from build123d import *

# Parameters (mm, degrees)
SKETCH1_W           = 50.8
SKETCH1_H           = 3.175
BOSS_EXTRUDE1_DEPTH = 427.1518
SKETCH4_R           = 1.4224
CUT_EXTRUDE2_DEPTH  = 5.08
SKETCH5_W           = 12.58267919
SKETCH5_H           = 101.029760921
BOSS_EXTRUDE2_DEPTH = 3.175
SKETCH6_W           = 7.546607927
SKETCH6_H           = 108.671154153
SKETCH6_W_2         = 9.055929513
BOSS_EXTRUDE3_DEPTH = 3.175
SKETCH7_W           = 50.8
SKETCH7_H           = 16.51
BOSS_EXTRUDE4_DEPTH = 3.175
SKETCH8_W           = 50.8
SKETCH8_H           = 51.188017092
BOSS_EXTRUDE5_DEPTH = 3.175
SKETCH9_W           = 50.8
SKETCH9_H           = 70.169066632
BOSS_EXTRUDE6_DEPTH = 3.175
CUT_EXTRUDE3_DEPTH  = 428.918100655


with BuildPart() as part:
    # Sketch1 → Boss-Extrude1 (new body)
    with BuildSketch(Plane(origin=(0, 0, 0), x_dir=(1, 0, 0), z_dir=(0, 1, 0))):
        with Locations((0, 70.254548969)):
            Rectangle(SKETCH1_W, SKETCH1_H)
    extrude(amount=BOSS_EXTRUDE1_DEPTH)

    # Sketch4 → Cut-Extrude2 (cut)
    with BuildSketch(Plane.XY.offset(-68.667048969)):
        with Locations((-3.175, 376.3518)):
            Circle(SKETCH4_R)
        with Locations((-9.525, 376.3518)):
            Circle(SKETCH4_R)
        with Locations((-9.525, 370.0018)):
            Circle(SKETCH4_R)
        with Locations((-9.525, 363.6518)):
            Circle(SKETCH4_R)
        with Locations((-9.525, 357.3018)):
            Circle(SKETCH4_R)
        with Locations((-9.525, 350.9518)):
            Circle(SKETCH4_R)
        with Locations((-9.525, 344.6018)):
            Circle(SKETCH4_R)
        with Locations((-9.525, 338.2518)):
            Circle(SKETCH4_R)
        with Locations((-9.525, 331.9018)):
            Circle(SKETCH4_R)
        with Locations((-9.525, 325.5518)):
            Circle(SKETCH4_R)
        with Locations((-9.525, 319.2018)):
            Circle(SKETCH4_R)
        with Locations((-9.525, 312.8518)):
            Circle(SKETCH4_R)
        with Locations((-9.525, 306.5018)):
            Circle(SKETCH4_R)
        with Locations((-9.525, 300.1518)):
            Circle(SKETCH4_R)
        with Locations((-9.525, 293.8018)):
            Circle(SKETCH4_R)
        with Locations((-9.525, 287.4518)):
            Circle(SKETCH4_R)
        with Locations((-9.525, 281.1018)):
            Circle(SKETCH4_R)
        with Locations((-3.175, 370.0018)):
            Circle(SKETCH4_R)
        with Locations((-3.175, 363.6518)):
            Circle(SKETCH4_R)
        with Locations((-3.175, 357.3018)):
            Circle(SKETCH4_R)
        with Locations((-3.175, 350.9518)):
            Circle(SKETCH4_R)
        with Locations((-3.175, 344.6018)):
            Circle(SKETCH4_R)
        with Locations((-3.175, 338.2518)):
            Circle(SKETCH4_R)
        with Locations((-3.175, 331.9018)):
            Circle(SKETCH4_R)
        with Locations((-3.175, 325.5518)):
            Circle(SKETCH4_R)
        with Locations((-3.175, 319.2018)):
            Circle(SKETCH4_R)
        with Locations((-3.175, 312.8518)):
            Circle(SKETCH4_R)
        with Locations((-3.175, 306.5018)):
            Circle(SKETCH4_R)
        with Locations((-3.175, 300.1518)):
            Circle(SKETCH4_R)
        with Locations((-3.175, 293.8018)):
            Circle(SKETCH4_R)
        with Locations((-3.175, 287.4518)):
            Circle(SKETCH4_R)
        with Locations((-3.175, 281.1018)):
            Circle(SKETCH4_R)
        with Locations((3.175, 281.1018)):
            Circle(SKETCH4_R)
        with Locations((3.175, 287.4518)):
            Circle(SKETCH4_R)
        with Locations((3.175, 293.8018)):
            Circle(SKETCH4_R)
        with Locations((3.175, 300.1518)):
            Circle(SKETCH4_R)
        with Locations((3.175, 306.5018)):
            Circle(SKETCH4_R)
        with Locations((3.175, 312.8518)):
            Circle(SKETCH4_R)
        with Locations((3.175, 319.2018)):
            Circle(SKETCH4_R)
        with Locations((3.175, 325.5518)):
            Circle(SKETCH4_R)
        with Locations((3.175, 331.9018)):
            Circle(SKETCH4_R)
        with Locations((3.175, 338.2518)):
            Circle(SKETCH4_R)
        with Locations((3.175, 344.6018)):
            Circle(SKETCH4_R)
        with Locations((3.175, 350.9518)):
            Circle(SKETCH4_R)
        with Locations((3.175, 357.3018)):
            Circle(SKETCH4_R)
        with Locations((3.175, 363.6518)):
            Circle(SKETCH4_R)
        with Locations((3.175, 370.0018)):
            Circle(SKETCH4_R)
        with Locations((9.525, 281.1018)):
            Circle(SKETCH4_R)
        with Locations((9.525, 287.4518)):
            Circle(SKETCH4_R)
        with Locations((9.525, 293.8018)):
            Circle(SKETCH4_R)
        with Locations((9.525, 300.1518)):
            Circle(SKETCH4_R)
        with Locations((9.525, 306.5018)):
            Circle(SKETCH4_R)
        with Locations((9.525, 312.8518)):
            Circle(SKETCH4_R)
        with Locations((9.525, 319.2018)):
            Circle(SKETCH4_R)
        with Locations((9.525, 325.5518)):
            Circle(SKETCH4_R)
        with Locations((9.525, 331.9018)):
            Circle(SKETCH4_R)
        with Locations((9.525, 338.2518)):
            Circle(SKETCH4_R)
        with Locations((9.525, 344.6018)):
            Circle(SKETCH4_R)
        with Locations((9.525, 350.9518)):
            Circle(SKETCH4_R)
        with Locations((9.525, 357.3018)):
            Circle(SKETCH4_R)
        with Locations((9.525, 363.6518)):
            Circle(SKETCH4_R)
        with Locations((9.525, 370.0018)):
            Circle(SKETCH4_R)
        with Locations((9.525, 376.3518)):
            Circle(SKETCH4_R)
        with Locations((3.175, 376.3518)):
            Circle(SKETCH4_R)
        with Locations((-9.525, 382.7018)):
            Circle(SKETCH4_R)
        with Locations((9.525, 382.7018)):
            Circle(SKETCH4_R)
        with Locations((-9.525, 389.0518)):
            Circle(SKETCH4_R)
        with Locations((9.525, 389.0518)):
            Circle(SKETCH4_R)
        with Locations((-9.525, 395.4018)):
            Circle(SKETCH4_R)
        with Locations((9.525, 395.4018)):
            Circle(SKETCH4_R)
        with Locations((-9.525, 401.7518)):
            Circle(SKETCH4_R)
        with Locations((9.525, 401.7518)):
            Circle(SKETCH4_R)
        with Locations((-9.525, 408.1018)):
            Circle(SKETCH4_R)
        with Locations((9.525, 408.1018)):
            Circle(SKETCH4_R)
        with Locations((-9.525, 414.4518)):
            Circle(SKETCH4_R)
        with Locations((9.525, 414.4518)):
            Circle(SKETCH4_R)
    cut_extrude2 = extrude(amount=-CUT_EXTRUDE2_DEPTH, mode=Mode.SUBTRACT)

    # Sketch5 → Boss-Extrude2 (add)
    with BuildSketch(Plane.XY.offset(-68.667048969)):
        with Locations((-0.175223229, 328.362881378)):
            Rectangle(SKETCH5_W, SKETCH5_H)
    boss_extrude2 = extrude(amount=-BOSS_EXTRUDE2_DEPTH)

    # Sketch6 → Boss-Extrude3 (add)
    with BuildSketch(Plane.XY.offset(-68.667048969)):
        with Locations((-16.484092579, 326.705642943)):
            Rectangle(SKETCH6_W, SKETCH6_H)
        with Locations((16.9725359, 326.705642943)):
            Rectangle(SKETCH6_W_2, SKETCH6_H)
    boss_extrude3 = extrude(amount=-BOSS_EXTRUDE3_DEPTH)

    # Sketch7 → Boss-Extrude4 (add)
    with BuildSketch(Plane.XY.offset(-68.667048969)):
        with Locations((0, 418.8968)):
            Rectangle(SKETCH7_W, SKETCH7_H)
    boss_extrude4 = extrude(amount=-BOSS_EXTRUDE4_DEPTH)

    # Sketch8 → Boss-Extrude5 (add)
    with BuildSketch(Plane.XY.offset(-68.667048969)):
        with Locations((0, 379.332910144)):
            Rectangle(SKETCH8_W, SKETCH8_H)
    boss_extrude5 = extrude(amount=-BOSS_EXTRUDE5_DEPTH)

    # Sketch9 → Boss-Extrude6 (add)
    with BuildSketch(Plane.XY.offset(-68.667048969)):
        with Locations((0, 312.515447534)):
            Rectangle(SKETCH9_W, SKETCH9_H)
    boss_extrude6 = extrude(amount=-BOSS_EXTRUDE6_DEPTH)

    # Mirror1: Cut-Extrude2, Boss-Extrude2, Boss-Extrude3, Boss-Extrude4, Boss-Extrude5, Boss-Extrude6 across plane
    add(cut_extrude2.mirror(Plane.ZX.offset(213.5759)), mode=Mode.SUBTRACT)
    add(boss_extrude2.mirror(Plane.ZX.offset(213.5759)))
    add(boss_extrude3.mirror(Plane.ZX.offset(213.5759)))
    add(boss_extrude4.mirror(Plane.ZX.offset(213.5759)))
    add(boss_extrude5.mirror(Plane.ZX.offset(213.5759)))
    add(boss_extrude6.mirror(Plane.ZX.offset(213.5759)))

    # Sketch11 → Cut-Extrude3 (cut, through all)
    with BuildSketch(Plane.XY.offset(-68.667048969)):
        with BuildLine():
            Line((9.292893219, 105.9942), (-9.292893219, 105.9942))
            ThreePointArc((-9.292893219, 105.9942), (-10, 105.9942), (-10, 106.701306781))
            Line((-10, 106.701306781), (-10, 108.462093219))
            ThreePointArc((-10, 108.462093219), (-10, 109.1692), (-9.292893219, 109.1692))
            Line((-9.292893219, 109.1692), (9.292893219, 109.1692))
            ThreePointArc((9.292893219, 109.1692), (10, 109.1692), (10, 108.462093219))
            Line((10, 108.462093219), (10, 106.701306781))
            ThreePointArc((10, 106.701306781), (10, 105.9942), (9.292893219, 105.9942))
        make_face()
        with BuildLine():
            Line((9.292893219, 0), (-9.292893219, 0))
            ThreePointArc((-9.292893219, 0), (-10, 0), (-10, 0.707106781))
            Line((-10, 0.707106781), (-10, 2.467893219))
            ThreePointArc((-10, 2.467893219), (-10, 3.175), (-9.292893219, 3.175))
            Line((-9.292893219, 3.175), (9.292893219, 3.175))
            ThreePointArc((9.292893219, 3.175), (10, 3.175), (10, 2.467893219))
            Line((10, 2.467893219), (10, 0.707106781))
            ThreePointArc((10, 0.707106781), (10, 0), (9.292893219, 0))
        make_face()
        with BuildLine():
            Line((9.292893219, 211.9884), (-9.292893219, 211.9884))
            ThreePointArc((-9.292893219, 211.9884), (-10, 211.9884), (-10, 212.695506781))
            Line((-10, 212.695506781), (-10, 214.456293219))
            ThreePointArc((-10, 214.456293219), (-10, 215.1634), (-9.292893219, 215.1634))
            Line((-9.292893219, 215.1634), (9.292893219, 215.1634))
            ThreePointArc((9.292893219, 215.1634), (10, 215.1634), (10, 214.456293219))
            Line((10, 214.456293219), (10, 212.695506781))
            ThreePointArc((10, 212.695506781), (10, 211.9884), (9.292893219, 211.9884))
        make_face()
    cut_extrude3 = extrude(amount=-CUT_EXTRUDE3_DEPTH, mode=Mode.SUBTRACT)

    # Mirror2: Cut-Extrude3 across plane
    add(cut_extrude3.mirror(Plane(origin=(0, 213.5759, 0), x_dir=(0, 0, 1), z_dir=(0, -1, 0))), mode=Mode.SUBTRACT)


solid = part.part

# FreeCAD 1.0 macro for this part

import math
import FreeCAD as App
import Part
import Sketcher
Q = App.Units.Quantity

doc = App.newDocument("Part")
body = doc.addObject("PartDesign::Body", "Body")

# Sketch on XZ plane
sketch1 = doc.addObject("Sketcher::SketchObject", "Sketch")
body.addObject(sketch1)
sketch1.AttachmentSupport = (doc.XZ_Plane, [""])
sketch1.MapMode = "FlatFace"
sketch1.addGeometry(Part.LineSegment(App.Vector(-25.4, -71.8, 0), App.Vector(-25.4, -68.7, 0)), False)
sketch1.addGeometry(Part.LineSegment(App.Vector(-25.4, -68.7, 0), App.Vector(25.4, -68.7, 0)), False)
sketch1.addGeometry(Part.LineSegment(App.Vector(25.4, -68.7, 0), App.Vector(25.4, -71.8, 0)), False)
sketch1.addGeometry(Part.LineSegment(App.Vector(25.4, -71.8, 0), App.Vector(-25.4, -71.8, 0)), False)
sketch1.addConstraint(Sketcher.Constraint("Coincident", 0, 2, 1, 1))
sketch1.addConstraint(Sketcher.Constraint("Coincident", 1, 2, 2, 1))
sketch1.addConstraint(Sketcher.Constraint("Coincident", 2, 2, 3, 1))
sketch1.addConstraint(Sketcher.Constraint("Coincident", 3, 2, 0, 1))
sketch1.addConstraint(Sketcher.Constraint("Vertical", 0))
sketch1.addConstraint(Sketcher.Constraint("Horizontal", 1))
sketch1.addConstraint(Sketcher.Constraint("Vertical", 2))
sketch1.addConstraint(Sketcher.Constraint("Horizontal", 3))
sketch1.addConstraint(Sketcher.Constraint("DistanceX", 1, 1, 1, 2, Q("2 in")))
sketch1.addConstraint(Sketcher.Constraint("DistanceX", 0, 2, -1, 1, Q("1 in")))
sketch1.addConstraint(Sketcher.Constraint("DistanceY", 0, 1, 0, 2, Q("0.125 in")))
sketch1.addConstraint(Sketcher.Constraint("DistanceY", 0, 2, -1, 1, 68.667049))
pad1 = doc.addObject("PartDesign::Pad", "Pad")
body.addObject(pad1)
pad1.Profile = sketch1
pad1.Length = Q("16.817 in")
pad1.Reversed = True

# Sketch on XY plane
sketch2 = doc.addObject("Sketcher::SketchObject", "Sketch001")
body.addObject(sketch2)
sketch2.AttachmentSupport = (doc.XY_Plane, [""])
sketch2.MapMode = "FlatFace"
sketch2.AttachmentOffset = App.Placement(App.Vector(0, 0, -68.667049), App.Rotation())
sketch2.addGeometry(Part.Circle(App.Vector(-3.2, 376.4, 0), App.Vector(0, 0, 1), 1.4), False)
sketch2.addGeometry(Part.Circle(App.Vector(-9.5, 376.4, 0), App.Vector(0, 0, 1), 1.4), False)
sketch2.addGeometry(Part.Circle(App.Vector(-9.5, 370, 0), App.Vector(0, 0, 1), 1.4), False)
sketch2.addGeometry(Part.Circle(App.Vector(-9.5, 363.7, 0), App.Vector(0, 0, 1), 1.4), False)
sketch2.addGeometry(Part.Circle(App.Vector(-9.5, 357.3, 0), App.Vector(0, 0, 1), 1.4), False)
sketch2.addGeometry(Part.Circle(App.Vector(-9.5, 351, 0), App.Vector(0, 0, 1), 1.4), False)
sketch2.addGeometry(Part.Circle(App.Vector(-9.5, 344.6, 0), App.Vector(0, 0, 1), 1.4), False)
sketch2.addGeometry(Part.Circle(App.Vector(-9.5, 338.3, 0), App.Vector(0, 0, 1), 1.4), False)
sketch2.addGeometry(Part.Circle(App.Vector(-9.5, 331.9, 0), App.Vector(0, 0, 1), 1.4), False)
sketch2.addGeometry(Part.Circle(App.Vector(-9.5, 325.6, 0), App.Vector(0, 0, 1), 1.4), False)
sketch2.addGeometry(Part.Circle(App.Vector(-9.5, 319.2, 0), App.Vector(0, 0, 1), 1.4), False)
sketch2.addGeometry(Part.Circle(App.Vector(-9.5, 312.9, 0), App.Vector(0, 0, 1), 1.4), False)
sketch2.addGeometry(Part.Circle(App.Vector(-9.5, 306.5, 0), App.Vector(0, 0, 1), 1.4), False)
sketch2.addGeometry(Part.Circle(App.Vector(-9.5, 300.2, 0), App.Vector(0, 0, 1), 1.4), False)
sketch2.addGeometry(Part.Circle(App.Vector(-9.5, 293.8, 0), App.Vector(0, 0, 1), 1.4), False)
sketch2.addGeometry(Part.Circle(App.Vector(-9.5, 287.5, 0), App.Vector(0, 0, 1), 1.4), False)
sketch2.addGeometry(Part.Circle(App.Vector(-9.5, 281.1, 0), App.Vector(0, 0, 1), 1.4), False)
sketch2.addGeometry(Part.Circle(App.Vector(-3.2, 370, 0), App.Vector(0, 0, 1), 1.4), False)
sketch2.addGeometry(Part.Circle(App.Vector(-3.2, 363.7, 0), App.Vector(0, 0, 1), 1.4), False)
sketch2.addGeometry(Part.Circle(App.Vector(-3.2, 357.3, 0), App.Vector(0, 0, 1), 1.4), False)
sketch2.addGeometry(Part.Circle(App.Vector(-3.2, 351, 0), App.Vector(0, 0, 1), 1.4), False)
sketch2.addGeometry(Part.Circle(App.Vector(-3.2, 344.6, 0), App.Vector(0, 0, 1), 1.4), False)
sketch2.addGeometry(Part.Circle(App.Vector(-3.2, 338.3, 0), App.Vector(0, 0, 1), 1.4), False)
sketch2.addGeometry(Part.Circle(App.Vector(-3.2, 331.9, 0), App.Vector(0, 0, 1), 1.4), False)
sketch2.addGeometry(Part.Circle(App.Vector(-3.2, 325.6, 0), App.Vector(0, 0, 1), 1.4), False)
sketch2.addGeometry(Part.Circle(App.Vector(-3.2, 319.2, 0), App.Vector(0, 0, 1), 1.4), False)
sketch2.addGeometry(Part.Circle(App.Vector(-3.2, 312.9, 0), App.Vector(0, 0, 1), 1.4), False)
sketch2.addGeometry(Part.Circle(App.Vector(-3.2, 306.5, 0), App.Vector(0, 0, 1), 1.4), False)
sketch2.addGeometry(Part.Circle(App.Vector(-3.2, 300.2, 0), App.Vector(0, 0, 1), 1.4), False)
sketch2.addGeometry(Part.Circle(App.Vector(-3.2, 293.8, 0), App.Vector(0, 0, 1), 1.4), False)
sketch2.addGeometry(Part.Circle(App.Vector(-3.2, 287.5, 0), App.Vector(0, 0, 1), 1.4), False)
sketch2.addGeometry(Part.Circle(App.Vector(-3.2, 281.1, 0), App.Vector(0, 0, 1), 1.4), False)
sketch2.addGeometry(Part.Circle(App.Vector(3.2, 281.1, 0), App.Vector(0, 0, 1), 1.4), False)
sketch2.addGeometry(Part.Circle(App.Vector(3.2, 287.5, 0), App.Vector(0, 0, 1), 1.4), False)
sketch2.addGeometry(Part.Circle(App.Vector(3.2, 293.8, 0), App.Vector(0, 0, 1), 1.4), False)
sketch2.addGeometry(Part.Circle(App.Vector(3.2, 300.2, 0), App.Vector(0, 0, 1), 1.4), False)
sketch2.addGeometry(Part.Circle(App.Vector(3.2, 306.5, 0), App.Vector(0, 0, 1), 1.4), False)
sketch2.addGeometry(Part.Circle(App.Vector(3.2, 312.9, 0), App.Vector(0, 0, 1), 1.4), False)
sketch2.addGeometry(Part.Circle(App.Vector(3.2, 319.2, 0), App.Vector(0, 0, 1), 1.4), False)
sketch2.addGeometry(Part.Circle(App.Vector(3.2, 325.6, 0), App.Vector(0, 0, 1), 1.4), False)
sketch2.addGeometry(Part.Circle(App.Vector(3.2, 331.9, 0), App.Vector(0, 0, 1), 1.4), False)
sketch2.addGeometry(Part.Circle(App.Vector(3.2, 338.3, 0), App.Vector(0, 0, 1), 1.4), False)
sketch2.addGeometry(Part.Circle(App.Vector(3.2, 344.6, 0), App.Vector(0, 0, 1), 1.4), False)
sketch2.addGeometry(Part.Circle(App.Vector(3.2, 351, 0), App.Vector(0, 0, 1), 1.4), False)
sketch2.addGeometry(Part.Circle(App.Vector(3.2, 357.3, 0), App.Vector(0, 0, 1), 1.4), False)
sketch2.addGeometry(Part.Circle(App.Vector(3.2, 363.7, 0), App.Vector(0, 0, 1), 1.4), False)
sketch2.addGeometry(Part.Circle(App.Vector(3.2, 370, 0), App.Vector(0, 0, 1), 1.4), False)
sketch2.addGeometry(Part.Circle(App.Vector(9.5, 281.1, 0), App.Vector(0, 0, 1), 1.4), False)
sketch2.addGeometry(Part.Circle(App.Vector(9.5, 287.5, 0), App.Vector(0, 0, 1), 1.4), False)
sketch2.addGeometry(Part.Circle(App.Vector(9.5, 293.8, 0), App.Vector(0, 0, 1), 1.4), False)
sketch2.addGeometry(Part.Circle(App.Vector(9.5, 300.2, 0), App.Vector(0, 0, 1), 1.4), False)
sketch2.addGeometry(Part.Circle(App.Vector(9.5, 306.5, 0), App.Vector(0, 0, 1), 1.4), False)
sketch2.addGeometry(Part.Circle(App.Vector(9.5, 312.9, 0), App.Vector(0, 0, 1), 1.4), False)
sketch2.addGeometry(Part.Circle(App.Vector(9.5, 319.2, 0), App.Vector(0, 0, 1), 1.4), False)
sketch2.addGeometry(Part.Circle(App.Vector(9.5, 325.6, 0), App.Vector(0, 0, 1), 1.4), False)
sketch2.addGeometry(Part.Circle(App.Vector(9.5, 331.9, 0), App.Vector(0, 0, 1), 1.4), False)
sketch2.addGeometry(Part.Circle(App.Vector(9.5, 338.3, 0), App.Vector(0, 0, 1), 1.4), False)
sketch2.addGeometry(Part.Circle(App.Vector(9.5, 344.6, 0), App.Vector(0, 0, 1), 1.4), False)
sketch2.addGeometry(Part.Circle(App.Vector(9.5, 351, 0), App.Vector(0, 0, 1), 1.4), False)
sketch2.addGeometry(Part.Circle(App.Vector(9.5, 357.3, 0), App.Vector(0, 0, 1), 1.4), False)
sketch2.addGeometry(Part.Circle(App.Vector(9.5, 363.7, 0), App.Vector(0, 0, 1), 1.4), False)
sketch2.addGeometry(Part.Circle(App.Vector(9.5, 370, 0), App.Vector(0, 0, 1), 1.4), False)
sketch2.addGeometry(Part.Circle(App.Vector(9.5, 376.4, 0), App.Vector(0, 0, 1), 1.4), False)
sketch2.addGeometry(Part.Circle(App.Vector(3.2, 376.4, 0), App.Vector(0, 0, 1), 1.4), False)
sketch2.addGeometry(Part.Circle(App.Vector(-9.5, 382.7, 0), App.Vector(0, 0, 1), 1.4), False)
sketch2.addGeometry(Part.Circle(App.Vector(9.5, 382.7, 0), App.Vector(0, 0, 1), 1.4), False)
sketch2.addGeometry(Part.Circle(App.Vector(-9.5, 389.1, 0), App.Vector(0, 0, 1), 1.4), False)
sketch2.addGeometry(Part.Circle(App.Vector(9.5, 389.1, 0), App.Vector(0, 0, 1), 1.4), False)
sketch2.addGeometry(Part.Circle(App.Vector(-9.5, 395.4, 0), App.Vector(0, 0, 1), 1.4), False)
sketch2.addGeometry(Part.Circle(App.Vector(9.5, 395.4, 0), App.Vector(0, 0, 1), 1.4), False)
sketch2.addGeometry(Part.Circle(App.Vector(-9.5, 401.8, 0), App.Vector(0, 0, 1), 1.4), False)
sketch2.addGeometry(Part.Circle(App.Vector(9.5, 401.8, 0), App.Vector(0, 0, 1), 1.4), False)
sketch2.addGeometry(Part.Circle(App.Vector(-9.5, 408.1, 0), App.Vector(0, 0, 1), 1.4), False)
sketch2.addGeometry(Part.Circle(App.Vector(9.5, 408.1, 0), App.Vector(0, 0, 1), 1.4), False)
sketch2.addGeometry(Part.Circle(App.Vector(-9.5, 414.5, 0), App.Vector(0, 0, 1), 1.4), False)
sketch2.addGeometry(Part.Circle(App.Vector(9.5, 414.5, 0), App.Vector(0, 0, 1), 1.4), False)
sketch2.addConstraint(Sketcher.Constraint("Equal", 0, 1))
sketch2.addConstraint(Sketcher.Constraint("Equal", 1, 2))
sketch2.addConstraint(Sketcher.Constraint("Equal", 2, 3))
sketch2.addConstraint(Sketcher.Constraint("Equal", 3, 4))
sketch2.addConstraint(Sketcher.Constraint("Equal", 4, 5))
sketch2.addConstraint(Sketcher.Constraint("Equal", 5, 6))
sketch2.addConstraint(Sketcher.Constraint("Equal", 6, 7))
sketch2.addConstraint(Sketcher.Constraint("Equal", 7, 8))
sketch2.addConstraint(Sketcher.Constraint("Equal", 8, 9))
sketch2.addConstraint(Sketcher.Constraint("Equal", 9, 10))
sketch2.addConstraint(Sketcher.Constraint("Equal", 10, 11))
sketch2.addConstraint(Sketcher.Constraint("Equal", 11, 12))
sketch2.addConstraint(Sketcher.Constraint("Equal", 12, 13))
sketch2.addConstraint(Sketcher.Constraint("Equal", 13, 14))
sketch2.addConstraint(Sketcher.Constraint("Equal", 14, 15))
sketch2.addConstraint(Sketcher.Constraint("Equal", 15, 16))
sketch2.addConstraint(Sketcher.Constraint("Equal", 16, 17))
sketch2.addConstraint(Sketcher.Constraint("Equal", 17, 18))
sketch2.addConstraint(Sketcher.Constraint("Equal", 18, 19))
sketch2.addConstraint(Sketcher.Constraint("Equal", 19, 20))
sketch2.addConstraint(Sketcher.Constraint("Equal", 20, 21))
sketch2.addConstraint(Sketcher.Constraint("Equal", 21, 22))
sketch2.addConstraint(Sketcher.Constraint("Equal", 22, 23))
sketch2.addConstraint(Sketcher.Constraint("Equal", 23, 24))
sketch2.addConstraint(Sketcher.Constraint("Equal", 24, 25))
sketch2.addConstraint(Sketcher.Constraint("Equal", 25, 26))
sketch2.addConstraint(Sketcher.Constraint("Equal", 26, 27))
sketch2.addConstraint(Sketcher.Constraint("Equal", 27, 28))
sketch2.addConstraint(Sketcher.Constraint("Equal", 28, 29))
sketch2.addConstraint(Sketcher.Constraint("Equal", 29, 30))
sketch2.addConstraint(Sketcher.Constraint("Equal", 30, 31))
sketch2.addConstraint(Sketcher.Constraint("Equal", 31, 32))
sketch2.addConstraint(Sketcher.Constraint("Equal", 32, 33))
sketch2.addConstraint(Sketcher.Constraint("Equal", 33, 34))
sketch2.addConstraint(Sketcher.Constraint("Equal", 34, 35))
sketch2.addConstraint(Sketcher.Constraint("Equal", 35, 36))
sketch2.addConstraint(Sketcher.Constraint("Equal", 36, 37))
sketch2.addConstraint(Sketcher.Constraint("Equal", 37, 38))
sketch2.addConstraint(Sketcher.Constraint("Equal", 38, 39))
sketch2.addConstraint(Sketcher.Constraint("Equal", 39, 40))
sketch2.addConstraint(Sketcher.Constraint("Equal", 40, 41))
sketch2.addConstraint(Sketcher.Constraint("Equal", 41, 42))
sketch2.addConstraint(Sketcher.Constraint("Equal", 42, 43))
sketch2.addConstraint(Sketcher.Constraint("Equal", 43, 44))
sketch2.addConstraint(Sketcher.Constraint("Equal", 44, 45))
sketch2.addConstraint(Sketcher.Constraint("Equal", 45, 46))
sketch2.addConstraint(Sketcher.Constraint("Equal", 46, 47))
sketch2.addConstraint(Sketcher.Constraint("Equal", 47, 48))
sketch2.addConstraint(Sketcher.Constraint("Equal", 48, 49))
sketch2.addConstraint(Sketcher.Constraint("Equal", 49, 50))
sketch2.addConstraint(Sketcher.Constraint("Equal", 50, 51))
sketch2.addConstraint(Sketcher.Constraint("Equal", 51, 52))
sketch2.addConstraint(Sketcher.Constraint("Equal", 52, 53))
sketch2.addConstraint(Sketcher.Constraint("Equal", 53, 54))
sketch2.addConstraint(Sketcher.Constraint("Equal", 54, 55))
sketch2.addConstraint(Sketcher.Constraint("Equal", 55, 56))
sketch2.addConstraint(Sketcher.Constraint("Equal", 56, 57))
sketch2.addConstraint(Sketcher.Constraint("Equal", 57, 58))
sketch2.addConstraint(Sketcher.Constraint("Equal", 58, 59))
sketch2.addConstraint(Sketcher.Constraint("Equal", 59, 60))
sketch2.addConstraint(Sketcher.Constraint("Equal", 60, 61))
sketch2.addConstraint(Sketcher.Constraint("Equal", 61, 62))
sketch2.addConstraint(Sketcher.Constraint("Equal", 62, 63))
sketch2.addConstraint(Sketcher.Constraint("Equal", 63, 64))
sketch2.addConstraint(Sketcher.Constraint("Equal", 64, 65))
sketch2.addConstraint(Sketcher.Constraint("Equal", 65, 66))
sketch2.addConstraint(Sketcher.Constraint("Equal", 66, 67))
sketch2.addConstraint(Sketcher.Constraint("Equal", 67, 68))
sketch2.addConstraint(Sketcher.Constraint("Equal", 68, 69))
sketch2.addConstraint(Sketcher.Constraint("Equal", 69, 70))
sketch2.addConstraint(Sketcher.Constraint("Equal", 70, 71))
sketch2.addConstraint(Sketcher.Constraint("Equal", 71, 72))
sketch2.addConstraint(Sketcher.Constraint("Equal", 72, 73))
sketch2.addConstraint(Sketcher.Constraint("Equal", 73, 74))
sketch2.addConstraint(Sketcher.Constraint("Equal", 74, 75))
sketch2.addConstraint(Sketcher.Constraint("Symmetric", 31, 3, 32, 3, -2))
sketch2.addConstraint(Sketcher.Constraint("Symmetric", 30, 3, 33, 3, -2))
sketch2.addConstraint(Sketcher.Constraint("Symmetric", 29, 3, 34, 3, -2))
sketch2.addConstraint(Sketcher.Constraint("Symmetric", 28, 3, 35, 3, -2))
sketch2.addConstraint(Sketcher.Constraint("Symmetric", 27, 3, 36, 3, -2))
sketch2.addConstraint(Sketcher.Constraint("Symmetric", 26, 3, 37, 3, -2))
sketch2.addConstraint(Sketcher.Constraint("Symmetric", 25, 3, 38, 3, -2))
sketch2.addConstraint(Sketcher.Constraint("Symmetric", 24, 3, 39, 3, -2))
sketch2.addConstraint(Sketcher.Constraint("Symmetric", 23, 3, 40, 3, -2))
sketch2.addConstraint(Sketcher.Constraint("Symmetric", 22, 3, 41, 3, -2))
sketch2.addConstraint(Sketcher.Constraint("Symmetric", 21, 3, 42, 3, -2))
sketch2.addConstraint(Sketcher.Constraint("Symmetric", 20, 3, 43, 3, -2))
sketch2.addConstraint(Sketcher.Constraint("Symmetric", 19, 3, 44, 3, -2))
sketch2.addConstraint(Sketcher.Constraint("Symmetric", 18, 3, 45, 3, -2))
sketch2.addConstraint(Sketcher.Constraint("Symmetric", 17, 3, 46, 3, -2))
sketch2.addConstraint(Sketcher.Constraint("Symmetric", 16, 3, 47, 3, -2))
sketch2.addConstraint(Sketcher.Constraint("Symmetric", 15, 3, 48, 3, -2))
sketch2.addConstraint(Sketcher.Constraint("Symmetric", 14, 3, 49, 3, -2))
sketch2.addConstraint(Sketcher.Constraint("Symmetric", 13, 3, 50, 3, -2))
sketch2.addConstraint(Sketcher.Constraint("Symmetric", 12, 3, 51, 3, -2))
sketch2.addConstraint(Sketcher.Constraint("Symmetric", 11, 3, 52, 3, -2))
sketch2.addConstraint(Sketcher.Constraint("Symmetric", 10, 3, 53, 3, -2))
sketch2.addConstraint(Sketcher.Constraint("Symmetric", 9, 3, 54, 3, -2))
sketch2.addConstraint(Sketcher.Constraint("Symmetric", 8, 3, 55, 3, -2))
sketch2.addConstraint(Sketcher.Constraint("Symmetric", 7, 3, 56, 3, -2))
sketch2.addConstraint(Sketcher.Constraint("Symmetric", 6, 3, 57, 3, -2))
sketch2.addConstraint(Sketcher.Constraint("Symmetric", 5, 3, 58, 3, -2))
sketch2.addConstraint(Sketcher.Constraint("Symmetric", 4, 3, 59, 3, -2))
sketch2.addConstraint(Sketcher.Constraint("Symmetric", 3, 3, 60, 3, -2))
sketch2.addConstraint(Sketcher.Constraint("Symmetric", 2, 3, 61, 3, -2))
sketch2.addConstraint(Sketcher.Constraint("Symmetric", 1, 3, 62, 3, -2))
sketch2.addConstraint(Sketcher.Constraint("Symmetric", 0, 3, 63, 3, -2))
sketch2.addConstraint(Sketcher.Constraint("Symmetric", 64, 3, 65, 3, -2))
sketch2.addConstraint(Sketcher.Constraint("Symmetric", 66, 3, 67, 3, -2))
sketch2.addConstraint(Sketcher.Constraint("Symmetric", 68, 3, 69, 3, -2))
sketch2.addConstraint(Sketcher.Constraint("Symmetric", 70, 3, 71, 3, -2))
sketch2.addConstraint(Sketcher.Constraint("Symmetric", 72, 3, 73, 3, -2))
sketch2.addConstraint(Sketcher.Constraint("Symmetric", 74, 3, 75, 3, -2))
sketch2.addConstraint(Sketcher.Constraint("Horizontal", 0, 3, 1, 3))
sketch2.addConstraint(Sketcher.Constraint("Horizontal", 2, 3, 17, 3))
sketch2.addConstraint(Sketcher.Constraint("Horizontal", 3, 3, 18, 3))
sketch2.addConstraint(Sketcher.Constraint("Horizontal", 4, 3, 19, 3))
sketch2.addConstraint(Sketcher.Constraint("Horizontal", 5, 3, 20, 3))
sketch2.addConstraint(Sketcher.Constraint("Horizontal", 6, 3, 21, 3))
sketch2.addConstraint(Sketcher.Constraint("Horizontal", 7, 3, 22, 3))
sketch2.addConstraint(Sketcher.Constraint("Horizontal", 8, 3, 23, 3))
sketch2.addConstraint(Sketcher.Constraint("Horizontal", 9, 3, 24, 3))
sketch2.addConstraint(Sketcher.Constraint("Horizontal", 10, 3, 25, 3))
sketch2.addConstraint(Sketcher.Constraint("Horizontal", 11, 3, 26, 3))
sketch2.addConstraint(Sketcher.Constraint("Horizontal", 12, 3, 27, 3))
sketch2.addConstraint(Sketcher.Constraint("Horizontal", 13, 3, 28, 3))
sketch2.addConstraint(Sketcher.Constraint("Horizontal", 14, 3, 29, 3))
sketch2.addConstraint(Sketcher.Constraint("Horizontal", 15, 3, 30, 3))
sketch2.addConstraint(Sketcher.Constraint("Horizontal", 16, 3, 31, 3))
sketch2.addConstraint(Sketcher.Constraint("Vertical", 1, 3, 2, 3))
sketch2.addConstraint(Sketcher.Constraint("Vertical", 2, 3, 3, 3))
sketch2.addConstraint(Sketcher.Constraint("Vertical", 3, 3, 4, 3))
sketch2.addConstraint(Sketcher.Constraint("Vertical", 4, 3, 5, 3))
sketch2.addConstraint(Sketcher.Constraint("Vertical", 5, 3, 6, 3))
sketch2.addConstraint(Sketcher.Constraint("Vertical", 6, 3, 7, 3))
sketch2.addConstraint(Sketcher.Constraint("Vertical", 7, 3, 8, 3))
sketch2.addConstraint(Sketcher.Constraint("Vertical", 8, 3, 9, 3))
sketch2.addConstraint(Sketcher.Constraint("Vertical", 9, 3, 10, 3))
sketch2.addConstraint(Sketcher.Constraint("Vertical", 10, 3, 11, 3))
sketch2.addConstraint(Sketcher.Constraint("Vertical", 11, 3, 12, 3))
sketch2.addConstraint(Sketcher.Constraint("Vertical", 12, 3, 13, 3))
sketch2.addConstraint(Sketcher.Constraint("Vertical", 13, 3, 14, 3))
sketch2.addConstraint(Sketcher.Constraint("Vertical", 14, 3, 15, 3))
sketch2.addConstraint(Sketcher.Constraint("Vertical", 15, 3, 16, 3))
sketch2.addConstraint(Sketcher.Constraint("Vertical", 0, 3, 17, 3))
sketch2.addConstraint(Sketcher.Constraint("Vertical", 17, 3, 18, 3))
sketch2.addConstraint(Sketcher.Constraint("Vertical", 18, 3, 19, 3))
sketch2.addConstraint(Sketcher.Constraint("Vertical", 19, 3, 20, 3))
sketch2.addConstraint(Sketcher.Constraint("Vertical", 20, 3, 21, 3))
sketch2.addConstraint(Sketcher.Constraint("Vertical", 21, 3, 22, 3))
sketch2.addConstraint(Sketcher.Constraint("Vertical", 22, 3, 23, 3))
sketch2.addConstraint(Sketcher.Constraint("Vertical", 23, 3, 24, 3))
sketch2.addConstraint(Sketcher.Constraint("Vertical", 24, 3, 25, 3))
sketch2.addConstraint(Sketcher.Constraint("Vertical", 25, 3, 26, 3))
sketch2.addConstraint(Sketcher.Constraint("Vertical", 26, 3, 27, 3))
sketch2.addConstraint(Sketcher.Constraint("Vertical", 27, 3, 28, 3))
sketch2.addConstraint(Sketcher.Constraint("Vertical", 28, 3, 29, 3))
sketch2.addConstraint(Sketcher.Constraint("Vertical", 29, 3, 30, 3))
sketch2.addConstraint(Sketcher.Constraint("Vertical", 30, 3, 31, 3))
sketch2.addConstraint(Sketcher.Constraint("Vertical", 16, 3, 64, 3))
sketch2.addConstraint(Sketcher.Constraint("Vertical", 64, 3, 66, 3))
sketch2.addConstraint(Sketcher.Constraint("Vertical", 66, 3, 68, 3))
sketch2.addConstraint(Sketcher.Constraint("Vertical", 68, 3, 70, 3))
sketch2.addConstraint(Sketcher.Constraint("Vertical", 70, 3, 72, 3))
sketch2.addConstraint(Sketcher.Constraint("Vertical", 72, 3, 74, 3))
sketch2.addConstraint(Sketcher.Constraint("Diameter", 0, Q("0.112 in")))
sketch2.addConstraint(Sketcher.Constraint("DistanceX", 0, 3, -1, 1, Q("0.125 in")))
sketch2.addConstraint(Sketcher.Constraint("DistanceY", -1, 1, 0, 3, Q("14.817 in")))
sketch2.addConstraint(Sketcher.Constraint("DistanceX", 1, 3, -1, 1, Q("0.375 in")))
sketch2.addConstraint(Sketcher.Constraint("DistanceY", -1, 1, 2, 3, Q("14.567 in")))
sketch2.addConstraint(Sketcher.Constraint("DistanceY", -1, 1, 3, 3, Q("14.317 in")))
sketch2.addConstraint(Sketcher.Constraint("DistanceY", -1, 1, 4, 3, Q("14.067 in")))
sketch2.addConstraint(Sketcher.Constraint("DistanceY", -1, 1, 5, 3, Q("13.817 in")))
sketch2.addConstraint(Sketcher.Constraint("DistanceY", -1, 1, 6, 3, Q("13.567 in")))
sketch2.addConstraint(Sketcher.Constraint("DistanceY", -1, 1, 7, 3, Q("13.317 in")))
sketch2.addConstraint(Sketcher.Constraint("DistanceY", -1, 1, 8, 3, Q("13.067 in")))
sketch2.addConstraint(Sketcher.Constraint("DistanceY", -1, 1, 9, 3, Q("12.817 in")))
sketch2.addConstraint(Sketcher.Constraint("DistanceY", -1, 1, 10, 3, Q("12.567 in")))
sketch2.addConstraint(Sketcher.Constraint("DistanceY", -1, 1, 11, 3, Q("12.317 in")))
sketch2.addConstraint(Sketcher.Constraint("DistanceY", -1, 1, 12, 3, Q("12.067 in")))
sketch2.addConstraint(Sketcher.Constraint("DistanceY", -1, 1, 13, 3, Q("11.817 in")))
sketch2.addConstraint(Sketcher.Constraint("DistanceY", -1, 1, 14, 3, Q("11.567 in")))
sketch2.addConstraint(Sketcher.Constraint("DistanceY", -1, 1, 15, 3, Q("11.317 in")))
sketch2.addConstraint(Sketcher.Constraint("DistanceY", -1, 1, 16, 3, Q("11.067 in")))
sketch2.addConstraint(Sketcher.Constraint("DistanceY", -1, 1, 64, 3, Q("15.067 in")))
sketch2.addConstraint(Sketcher.Constraint("DistanceY", -1, 1, 66, 3, Q("15.317 in")))
sketch2.addConstraint(Sketcher.Constraint("DistanceY", -1, 1, 68, 3, Q("15.567 in")))
sketch2.addConstraint(Sketcher.Constraint("DistanceY", -1, 1, 70, 3, Q("15.817 in")))
sketch2.addConstraint(Sketcher.Constraint("DistanceY", -1, 1, 72, 3, Q("16.067 in")))
sketch2.addConstraint(Sketcher.Constraint("DistanceY", -1, 1, 74, 3, Q("16.317 in")))
pocket1 = doc.addObject("PartDesign::Pocket", "Pocket")
body.addObject(pocket1)
pocket1.Profile = sketch2
pocket1.Length = Q("0.2 in")

# Sketch on XY plane
sketch3 = doc.addObject("Sketcher::SketchObject", "Sketch002")
body.addObject(sketch3)
sketch3.AttachmentSupport = (doc.XY_Plane, [""])
sketch3.MapMode = "FlatFace"
sketch3.AttachmentOffset = App.Placement(App.Vector(0, 0, -68.667049), App.Rotation())
sketch3.addGeometry(Part.LineSegment(App.Vector(-6, 379, 0), App.Vector(-6, 278, 0)), False)
sketch3.addGeometry(Part.LineSegment(App.Vector(-6, 278, 0), App.Vector(6, 278, 0)), False)
sketch3.addGeometry(Part.LineSegment(App.Vector(6, 278, 0), App.Vector(6, 379, 0)), False)
sketch3.addGeometry(Part.LineSegment(App.Vector(6, 379, 0), App.Vector(-6, 379, 0)), False)
sketch3.addConstraint(Sketcher.Constraint("Coincident", 0, 2, 1, 1))
sketch3.addConstraint(Sketcher.Constraint("Coincident", 1, 2, 2, 1))
sketch3.addConstraint(Sketcher.Constraint("Coincident", 2, 2, 3, 1))
sketch3.addConstraint(Sketcher.Constraint("Coincident", 3, 2, 0, 1))
sketch3.addConstraint(Sketcher.Constraint("Vertical", 0))
sketch3.addConstraint(Sketcher.Constraint("Horizontal", 1))
sketch3.addConstraint(Sketcher.Constraint("Vertical", 2))
sketch3.addConstraint(Sketcher.Constraint("Horizontal", 3))
sketch3.addConstraint(Sketcher.Constraint("DistanceX", 1, 1, 1, 2, 12.582679))
sketch3.addConstraint(Sketcher.Constraint("DistanceY", 0, 2, 0, 1, 101.029761))
sketch3.addConstraint(Sketcher.Constraint("DistanceY", -1, 1, 0, 2, 277.848001))
sketch3.addConstraint(Sketcher.Constraint("DistanceX", 0, 2, -1, 1, 6.466563))
pad2 = doc.addObject("PartDesign::Pad", "Pad001")
body.addObject(pad2)
pad2.Profile = sketch3
pad2.Length = Q("0.125 in")
pad2.Reversed = True

# Sketch on XY plane
sketch4 = doc.addObject("Sketcher::SketchObject", "Sketch003")
body.addObject(sketch4)
sketch4.AttachmentSupport = (doc.XY_Plane, [""])
sketch4.MapMode = "FlatFace"
sketch4.AttachmentOffset = App.Placement(App.Vector(0, 0, -68.667049), App.Rotation())
sketch4.addGeometry(Part.LineSegment(App.Vector(-20, 381, 0), App.Vector(-20, 272, 0)), False)
sketch4.addGeometry(Part.LineSegment(App.Vector(-20, 272, 0), App.Vector(-13, 272, 0)), False)
sketch4.addGeometry(Part.LineSegment(App.Vector(-13, 272, 0), App.Vector(-13, 381, 0)), False)
sketch4.addGeometry(Part.LineSegment(App.Vector(-13, 381, 0), App.Vector(-20, 381, 0)), False)
sketch4.addGeometry(Part.LineSegment(App.Vector(12, 381, 0), App.Vector(12, 272, 0)), False)
sketch4.addGeometry(Part.LineSegment(App.Vector(12, 272, 0), App.Vector(22, 272, 0)), False)
sketch4.addGeometry(Part.LineSegment(App.Vector(22, 272, 0), App.Vector(22, 381, 0)), False)
sketch4.addGeometry(Part.LineSegment(App.Vector(22, 381, 0), App.Vector(12, 381, 0)), False)
sketch4.addConstraint(Sketcher.Constraint("Coincident", 0, 2, 1, 1))
sketch4.addConstraint(Sketcher.Constraint("Coincident", 1, 2, 2, 1))
sketch4.addConstraint(Sketcher.Constraint("Coincident", 2, 2, 3, 1))
sketch4.addConstraint(Sketcher.Constraint("Coincident", 3, 2, 0, 1))
sketch4.addConstraint(Sketcher.Constraint("Coincident", 4, 2, 5, 1))
sketch4.addConstraint(Sketcher.Constraint("Coincident", 5, 2, 6, 1))
sketch4.addConstraint(Sketcher.Constraint("Coincident", 6, 2, 7, 1))
sketch4.addConstraint(Sketcher.Constraint("Coincident", 7, 2, 4, 1))
sketch4.addConstraint(Sketcher.Constraint("Vertical", 0))
sketch4.addConstraint(Sketcher.Constraint("Horizontal", 1))
sketch4.addConstraint(Sketcher.Constraint("Vertical", 2))
sketch4.addConstraint(Sketcher.Constraint("Horizontal", 3))
sketch4.addConstraint(Sketcher.Constraint("Vertical", 4))
sketch4.addConstraint(Sketcher.Constraint("Horizontal", 5))
sketch4.addConstraint(Sketcher.Constraint("Vertical", 6))
sketch4.addConstraint(Sketcher.Constraint("Horizontal", 7))
sketch4.addConstraint(Sketcher.Constraint("Horizontal", 1, 2, 4, 2))
sketch4.addConstraint(Sketcher.Constraint("Horizontal", 3, 2, 6, 2))
sketch4.addConstraint(Sketcher.Constraint("DistanceX", 5, 1, 5, 2, 9.05593))
sketch4.addConstraint(Sketcher.Constraint("DistanceX", -1, 1, 5, 2, 21.500501))
sketch4.addConstraint(Sketcher.Constraint("DistanceX", 1, 1, 1, 2, 7.546608))
sketch4.addConstraint(Sketcher.Constraint("DistanceY", 0, 2, 0, 1, 108.671154))
sketch4.addConstraint(Sketcher.Constraint("DistanceX", 1, 2, -1, 1, 12.710789))
sketch4.addConstraint(Sketcher.Constraint("DistanceY", -1, 1, 2, 2, 381.04122))
pad3 = doc.addObject("PartDesign::Pad", "Pad002")
body.addObject(pad3)
pad3.Profile = sketch4
pad3.Length = Q("0.125 in")
pad3.Reversed = True

# Sketch on XY plane
sketch5 = doc.addObject("Sketcher::SketchObject", "Sketch004")
body.addObject(sketch5)
sketch5.AttachmentSupport = (doc.XY_Plane, [""])
sketch5.MapMode = "FlatFace"
sketch5.AttachmentOffset = App.Placement(App.Vector(0, 0, -68.667049), App.Rotation())
sketch5.addGeometry(Part.LineSegment(App.Vector(-25, 427, 0), App.Vector(-25, 411, 0)), False)
sketch5.addGeometry(Part.LineSegment(App.Vector(-25, 411, 0), App.Vector(25, 411, 0)), False)
sketch5.addGeometry(Part.LineSegment(App.Vector(25, 411, 0), App.Vector(25, 427, 0)), False)
sketch5.addGeometry(Part.LineSegment(App.Vector(25, 427, 0), App.Vector(-25, 427, 0)), False)
sketch5.addConstraint(Sketcher.Constraint("Coincident", 0, 2, 1, 1))
sketch5.addConstraint(Sketcher.Constraint("Coincident", 1, 2, 2, 1))
sketch5.addConstraint(Sketcher.Constraint("Coincident", 2, 2, 3, 1))
sketch5.addConstraint(Sketcher.Constraint("Coincident", 3, 2, 0, 1))
sketch5.addConstraint(Sketcher.Constraint("Vertical", 0))
sketch5.addConstraint(Sketcher.Constraint("Horizontal", 1))
sketch5.addConstraint(Sketcher.Constraint("Vertical", 2))
sketch5.addConstraint(Sketcher.Constraint("Horizontal", 3))
sketch5.addConstraint(Sketcher.Constraint("DistanceX", 1, 1, 1, 2, Q("2 in")))
sketch5.addConstraint(Sketcher.Constraint("DistanceX", 0, 2, -1, 1, Q("1 in")))
sketch5.addConstraint(Sketcher.Constraint("DistanceY", 0, 2, 0, 1, Q("0.65 in")))
sketch5.addConstraint(Sketcher.Constraint("DistanceY", -1, 1, 0, 2, Q("16.167 in")))
pad4 = doc.addObject("PartDesign::Pad", "Pad003")
body.addObject(pad4)
pad4.Profile = sketch5
pad4.Length = Q("0.125 in")
pad4.Reversed = True

# Sketch on XY plane
sketch6 = doc.addObject("Sketcher::SketchObject", "Sketch005")
body.addObject(sketch6)
sketch6.AttachmentSupport = (doc.XY_Plane, [""])
sketch6.MapMode = "FlatFace"
sketch6.AttachmentOffset = App.Placement(App.Vector(0, 0, -68.667049), App.Rotation())
sketch6.addGeometry(Part.LineSegment(App.Vector(-25, 405, 0), App.Vector(-25, 354, 0)), False)
sketch6.addGeometry(Part.LineSegment(App.Vector(-25, 354, 0), App.Vector(25, 354, 0)), False)
sketch6.addGeometry(Part.LineSegment(App.Vector(25, 354, 0), App.Vector(25, 405, 0)), False)
sketch6.addGeometry(Part.LineSegment(App.Vector(25, 405, 0), App.Vector(-25, 405, 0)), False)
sketch6.addConstraint(Sketcher.Constraint("Coincident", 0, 2, 1, 1))
sketch6.addConstraint(Sketcher.Constraint("Coincident", 1, 2, 2, 1))
sketch6.addConstraint(Sketcher.Constraint("Coincident", 2, 2, 3, 1))
sketch6.addConstraint(Sketcher.Constraint("Coincident", 3, 2, 0, 1))
sketch6.addConstraint(Sketcher.Constraint("Vertical", 0))
sketch6.addConstraint(Sketcher.Constraint("Horizontal", 1))
sketch6.addConstraint(Sketcher.Constraint("Vertical", 2))
sketch6.addConstraint(Sketcher.Constraint("Horizontal", 3))
sketch6.addConstraint(Sketcher.Constraint("DistanceX", 1, 1, 1, 2, Q("2 in")))
sketch6.addConstraint(Sketcher.Constraint("DistanceX", 0, 2, -1, 1, Q("1 in")))
sketch6.addConstraint(Sketcher.Constraint("DistanceY", -1, 1, 0, 2, 353.738902))
sketch6.addConstraint(Sketcher.Constraint("DistanceY", 0, 2, 0, 1, 51.188017))
pad5 = doc.addObject("PartDesign::Pad", "Pad004")
body.addObject(pad5)
pad5.Profile = sketch6
pad5.Length = Q("0.125 in")
pad5.Reversed = True

# Sketch on XY plane
sketch7 = doc.addObject("Sketcher::SketchObject", "Sketch006")
body.addObject(sketch7)
sketch7.AttachmentSupport = (doc.XY_Plane, [""])
sketch7.MapMode = "FlatFace"
sketch7.AttachmentOffset = App.Placement(App.Vector(0, 0, -68.667049), App.Rotation())
sketch7.addGeometry(Part.LineSegment(App.Vector(-25, 348, 0), App.Vector(-25, 277, 0)), False)
sketch7.addGeometry(Part.LineSegment(App.Vector(-25, 277, 0), App.Vector(25, 277, 0)), False)
sketch7.addGeometry(Part.LineSegment(App.Vector(25, 277, 0), App.Vector(25, 348, 0)), False)
sketch7.addGeometry(Part.LineSegment(App.Vector(25, 348, 0), App.Vector(-25, 348, 0)), False)
sketch7.addConstraint(Sketcher.Constraint("Coincident", 0, 2, 1, 1))
sketch7.addConstraint(Sketcher.Constraint("Coincident", 1, 2, 2, 1))
sketch7.addConstraint(Sketcher.Constraint("Coincident", 2, 2, 3, 1))
sketch7.addConstraint(Sketcher.Constraint("Coincident", 3, 2, 0, 1))
sketch7.addConstraint(Sketcher.Constraint("Vertical", 0))
sketch7.addConstraint(Sketcher.Constraint("Horizontal", 1))
sketch7.addConstraint(Sketcher.Constraint("Vertical", 2))
sketch7.addConstraint(Sketcher.Constraint("Horizontal", 3))
sketch7.addConstraint(Sketcher.Constraint("DistanceX", 1, 1, 1, 2, Q("2 in")))
sketch7.addConstraint(Sketcher.Constraint("DistanceX", 0, 2, -1, 1, Q("1 in")))
sketch7.addConstraint(Sketcher.Constraint("DistanceY", 0, 2, 0, 1, 70.169067))
sketch7.addConstraint(Sketcher.Constraint("DistanceY", -1, 1, 2, 2, 347.599981))
pad6 = doc.addObject("PartDesign::Pad", "Pad005")
body.addObject(pad6)
pad6.Profile = sketch7
pad6.Length = Q("0.125 in")
pad6.Reversed = True
doc.recompute()

datumplane = doc.addObject("PartDesign::Plane", "DatumPlane")
body.addObject(datumplane)
datumplane.AttachmentSupport = (doc.XZ_Plane, [""])
datumplane.MapMode = "FlatFace"
datumplane.AttachmentOffset = App.Placement(App.Vector(0, 0, -8.4085 * 25.4), App.Rotation())
mirrored = doc.addObject("PartDesign::Mirrored", "Mirrored")
body.addObject(mirrored)
mirrored.Originals = [pocket1, pad2, pad3, pad4, pad5, pad6]
mirrored.MirrorPlane = (datumplane, [""])
body.Tip = mirrored

# Sketch on XY plane
sketch8 = doc.addObject("Sketcher::SketchObject", "Sketch007")
body.addObject(sketch8)
sketch8.AttachmentSupport = (doc.XY_Plane, [""])
sketch8.MapMode = "FlatFace"
sketch8.AttachmentOffset = App.Placement(App.Vector(0, 0, -68.667049), App.Rotation())
sketch8.addGeometry(Part.LineSegment(App.Vector(-9.3, 106, 0), App.Vector(9.3, 106, 0)), False)
sketch8.addGeometry(Part.ArcOfCircle(Part.Circle(App.Vector(9.6, 106.3, 0), App.Vector(0, 0, 1), 0.5), math.radians(-135), math.radians(45)), False)
sketch8.addGeometry(Part.LineSegment(App.Vector(10, 106.7, 0), App.Vector(10, 108.5, 0)), False)
sketch8.addGeometry(Part.ArcOfCircle(Part.Circle(App.Vector(9.6, 108.8, 0), App.Vector(0, 0, 1), 0.5), math.radians(-45), math.radians(135)), False)
sketch8.addGeometry(Part.LineSegment(App.Vector(9.3, 109.2, 0), App.Vector(-9.3, 109.2, 0)), False)
sketch8.addGeometry(Part.ArcOfCircle(Part.Circle(App.Vector(-9.6, 108.8, 0), App.Vector(0, 0, 1), 0.5), math.radians(45), math.radians(225)), False)
sketch8.addGeometry(Part.LineSegment(App.Vector(-10, 108.5, 0), App.Vector(-10, 106.7, 0)), False)
sketch8.addGeometry(Part.ArcOfCircle(Part.Circle(App.Vector(-9.6, 106.3, 0), App.Vector(0, 0, 1), 0.5), math.radians(135), math.radians(315)), False)
sketch8.addGeometry(Part.LineSegment(App.Vector(-9.3, 0, 0), App.Vector(9.3, 0, 0)), False)
sketch8.addGeometry(Part.ArcOfCircle(Part.Circle(App.Vector(9.6, 0.4, 0), App.Vector(0, 0, 1), 0.5), math.radians(-135), math.radians(45)), False)
sketch8.addGeometry(Part.LineSegment(App.Vector(10, 0.7, 0), App.Vector(10, 2.5, 0)), False)
sketch8.addGeometry(Part.ArcOfCircle(Part.Circle(App.Vector(9.6, 2.8, 0), App.Vector(0, 0, 1), 0.5), math.radians(-45), math.radians(135)), False)
sketch8.addGeometry(Part.LineSegment(App.Vector(9.3, 3.2, 0), App.Vector(-9.3, 3.2, 0)), False)
sketch8.addGeometry(Part.ArcOfCircle(Part.Circle(App.Vector(-9.6, 2.8, 0), App.Vector(0, 0, 1), 0.5), math.radians(45), math.radians(225)), False)
sketch8.addGeometry(Part.LineSegment(App.Vector(-10, 2.5, 0), App.Vector(-10, 0.7, 0)), False)
sketch8.addGeometry(Part.ArcOfCircle(Part.Circle(App.Vector(-9.6, 0.4, 0), App.Vector(0, 0, 1), 0.5), math.radians(135), math.radians(315)), False)
sketch8.addGeometry(Part.LineSegment(App.Vector(-9.3, 212, 0), App.Vector(9.3, 212, 0)), False)
sketch8.addGeometry(Part.ArcOfCircle(Part.Circle(App.Vector(9.6, 212.3, 0), App.Vector(0, 0, 1), 0.5), math.radians(-135), math.radians(45)), False)
sketch8.addGeometry(Part.LineSegment(App.Vector(10, 212.7, 0), App.Vector(10, 214.5, 0)), False)
sketch8.addGeometry(Part.ArcOfCircle(Part.Circle(App.Vector(9.6, 214.8, 0), App.Vector(0, 0, 1), 0.5), math.radians(-45), math.radians(135)), False)
sketch8.addGeometry(Part.LineSegment(App.Vector(9.3, 215.2, 0), App.Vector(-9.3, 215.2, 0)), False)
sketch8.addGeometry(Part.ArcOfCircle(Part.Circle(App.Vector(-9.6, 214.8, 0), App.Vector(0, 0, 1), 0.5), math.radians(45), math.radians(225)), False)
sketch8.addGeometry(Part.LineSegment(App.Vector(-10, 214.5, 0), App.Vector(-10, 212.7, 0)), False)
sketch8.addGeometry(Part.ArcOfCircle(Part.Circle(App.Vector(-9.6, 212.3, 0), App.Vector(0, 0, 1), 0.5), math.radians(135), math.radians(315)), False)
sketch8.addConstraint(Sketcher.Constraint("Coincident", 0, 2, 1, 1))
sketch8.addConstraint(Sketcher.Constraint("Coincident", 1, 2, 2, 1))
sketch8.addConstraint(Sketcher.Constraint("Coincident", 2, 2, 3, 1))
sketch8.addConstraint(Sketcher.Constraint("Coincident", 3, 2, 4, 1))
sketch8.addConstraint(Sketcher.Constraint("Coincident", 4, 2, 5, 1))
sketch8.addConstraint(Sketcher.Constraint("Coincident", 5, 2, 6, 1))
sketch8.addConstraint(Sketcher.Constraint("Coincident", 6, 2, 7, 1))
sketch8.addConstraint(Sketcher.Constraint("Coincident", 7, 2, 0, 1))
sketch8.addConstraint(Sketcher.Constraint("Coincident", 8, 2, 9, 1))
sketch8.addConstraint(Sketcher.Constraint("Coincident", 9, 2, 10, 1))
sketch8.addConstraint(Sketcher.Constraint("Coincident", 10, 2, 11, 1))
sketch8.addConstraint(Sketcher.Constraint("Coincident", 11, 2, 12, 1))
sketch8.addConstraint(Sketcher.Constraint("Coincident", 12, 2, 13, 1))
sketch8.addConstraint(Sketcher.Constraint("Coincident", 13, 2, 14, 1))
sketch8.addConstraint(Sketcher.Constraint("Coincident", 14, 2, 15, 1))
sketch8.addConstraint(Sketcher.Constraint("Coincident", 15, 2, 8, 1))
sketch8.addConstraint(Sketcher.Constraint("Coincident", 16, 2, 17, 1))
sketch8.addConstraint(Sketcher.Constraint("Coincident", 17, 2, 18, 1))
sketch8.addConstraint(Sketcher.Constraint("Coincident", 18, 2, 19, 1))
sketch8.addConstraint(Sketcher.Constraint("Coincident", 19, 2, 20, 1))
sketch8.addConstraint(Sketcher.Constraint("Coincident", 20, 2, 21, 1))
sketch8.addConstraint(Sketcher.Constraint("Coincident", 21, 2, 22, 1))
sketch8.addConstraint(Sketcher.Constraint("Coincident", 22, 2, 23, 1))
sketch8.addConstraint(Sketcher.Constraint("Coincident", 23, 2, 16, 1))
sketch8.addConstraint(Sketcher.Constraint("Horizontal", 0))
sketch8.addConstraint(Sketcher.Constraint("Vertical", 2))
sketch8.addConstraint(Sketcher.Constraint("Horizontal", 4))
sketch8.addConstraint(Sketcher.Constraint("Vertical", 6))
sketch8.addConstraint(Sketcher.Constraint("Horizontal", 8))
sketch8.addConstraint(Sketcher.Constraint("Vertical", 10))
sketch8.addConstraint(Sketcher.Constraint("Horizontal", 12))
sketch8.addConstraint(Sketcher.Constraint("Vertical", 14))
sketch8.addConstraint(Sketcher.Constraint("Horizontal", 16))
sketch8.addConstraint(Sketcher.Constraint("Vertical", 18))
sketch8.addConstraint(Sketcher.Constraint("Horizontal", 20))
sketch8.addConstraint(Sketcher.Constraint("Vertical", 22))
sketch8.addConstraint(Sketcher.Constraint("Equal", 1, 3))
sketch8.addConstraint(Sketcher.Constraint("Equal", 3, 5))
sketch8.addConstraint(Sketcher.Constraint("Equal", 5, 7))
sketch8.addConstraint(Sketcher.Constraint("Equal", 7, 9))
sketch8.addConstraint(Sketcher.Constraint("Equal", 9, 11))
sketch8.addConstraint(Sketcher.Constraint("Equal", 11, 13))
sketch8.addConstraint(Sketcher.Constraint("Equal", 13, 15))
sketch8.addConstraint(Sketcher.Constraint("Equal", 15, 17))
sketch8.addConstraint(Sketcher.Constraint("Equal", 17, 19))
sketch8.addConstraint(Sketcher.Constraint("Equal", 19, 21))
sketch8.addConstraint(Sketcher.Constraint("Equal", 21, 23))
sketch8.addConstraint(Sketcher.Constraint("Symmetric", 8, 2, 15, 2, -1, 1))
sketch8.addConstraint(Sketcher.Constraint("Symmetric", 3, 3, 5, 3, -2))
sketch8.addConstraint(Sketcher.Constraint("Symmetric", 1, 3, 7, 3, -2))
sketch8.addConstraint(Sketcher.Constraint("Symmetric", 11, 3, 13, 3, -2))
sketch8.addConstraint(Sketcher.Constraint("Symmetric", 19, 3, 21, 3, -2))
sketch8.addConstraint(Sketcher.Constraint("Symmetric", 17, 3, 23, 3, -2))
sketch8.addConstraint(Sketcher.Constraint("Horizontal", 9, 3, 15, 3))
sketch8.addConstraint(Sketcher.Constraint("Horizontal", 2, 2, 5, 2))
sketch8.addConstraint(Sketcher.Constraint("Horizontal", 10, 2, 13, 2))
sketch8.addConstraint(Sketcher.Constraint("Horizontal", 18, 2, 21, 2))
sketch8.addConstraint(Sketcher.Constraint("Vertical", 1, 3, 3, 3))
sketch8.addConstraint(Sketcher.Constraint("Vertical", 3, 3, 9, 3))
sketch8.addConstraint(Sketcher.Constraint("Vertical", 9, 3, 11, 3))
sketch8.addConstraint(Sketcher.Constraint("Vertical", 11, 3, 17, 3))
sketch8.addConstraint(Sketcher.Constraint("Vertical", 17, 3, 19, 3))
sketch8.addConstraint(Sketcher.Constraint("Vertical", 0, 2, 3, 2))
sketch8.addConstraint(Sketcher.Constraint("Vertical", 3, 2, 8, 2))
sketch8.addConstraint(Sketcher.Constraint("Vertical", 2, 2, 9, 2))
sketch8.addConstraint(Sketcher.Constraint("Vertical", 8, 2, 11, 2))
sketch8.addConstraint(Sketcher.Constraint("Vertical", 11, 2, 16, 2))
sketch8.addConstraint(Sketcher.Constraint("Vertical", 10, 2, 17, 2))
sketch8.addConstraint(Sketcher.Constraint("Vertical", 16, 2, 19, 2))
sketch8.addConstraint(Sketcher.Constraint("Equal", 6, 10))
sketch8.addConstraint(Sketcher.Constraint("Equal", 14, 18))
sketch8.addConstraint(Sketcher.Constraint("Radius", 1, 0.5))
sketch8.addConstraint(Sketcher.Constraint("DistanceY", -1, 1, 0, 2, Q("4.173 in")))
sketch8.addConstraint(Sketcher.Constraint("DistanceY", -1, 1, 3, 2, Q("4.298 in")))
sketch8.addConstraint(Sketcher.Constraint("DistanceY", -1, 1, 16, 2, Q("8.346 in")))
sketch8.addConstraint(Sketcher.Constraint("DistanceX", -1, 1, 1, 2, 10.0))
sketch8.addConstraint(Sketcher.Constraint("DistanceX", 0, 1, 0, 2, 18.585786))
sketch8.addConstraint(Sketcher.Constraint("DistanceX", 7, 3, 0, 2, 18.93934))
pocket2 = doc.addObject("PartDesign::Pocket", "Pocket001")
body.addObject(pocket2)
pocket2.Profile = sketch8
pocket2.Type = "ThroughAll"
doc.recompute()

datumplane2 = doc.addObject("PartDesign::Plane", "DatumPlane001")
body.addObject(datumplane2)
datumplane2.AttachmentSupport = (doc.XZ_Plane, [""])
datumplane2.MapMode = "FlatFace"
datumplane2.AttachmentOffset = App.Placement(App.Vector(0, 0, -8.4085 * 25.4), App.Rotation())
mirrored2 = doc.addObject("PartDesign::Mirrored", "Mirrored001")
body.addObject(mirrored2)
mirrored2.Originals = [pocket2]
mirrored2.MirrorPlane = (datumplane2, [""])
body.Tip = mirrored2

doc.recompute()
